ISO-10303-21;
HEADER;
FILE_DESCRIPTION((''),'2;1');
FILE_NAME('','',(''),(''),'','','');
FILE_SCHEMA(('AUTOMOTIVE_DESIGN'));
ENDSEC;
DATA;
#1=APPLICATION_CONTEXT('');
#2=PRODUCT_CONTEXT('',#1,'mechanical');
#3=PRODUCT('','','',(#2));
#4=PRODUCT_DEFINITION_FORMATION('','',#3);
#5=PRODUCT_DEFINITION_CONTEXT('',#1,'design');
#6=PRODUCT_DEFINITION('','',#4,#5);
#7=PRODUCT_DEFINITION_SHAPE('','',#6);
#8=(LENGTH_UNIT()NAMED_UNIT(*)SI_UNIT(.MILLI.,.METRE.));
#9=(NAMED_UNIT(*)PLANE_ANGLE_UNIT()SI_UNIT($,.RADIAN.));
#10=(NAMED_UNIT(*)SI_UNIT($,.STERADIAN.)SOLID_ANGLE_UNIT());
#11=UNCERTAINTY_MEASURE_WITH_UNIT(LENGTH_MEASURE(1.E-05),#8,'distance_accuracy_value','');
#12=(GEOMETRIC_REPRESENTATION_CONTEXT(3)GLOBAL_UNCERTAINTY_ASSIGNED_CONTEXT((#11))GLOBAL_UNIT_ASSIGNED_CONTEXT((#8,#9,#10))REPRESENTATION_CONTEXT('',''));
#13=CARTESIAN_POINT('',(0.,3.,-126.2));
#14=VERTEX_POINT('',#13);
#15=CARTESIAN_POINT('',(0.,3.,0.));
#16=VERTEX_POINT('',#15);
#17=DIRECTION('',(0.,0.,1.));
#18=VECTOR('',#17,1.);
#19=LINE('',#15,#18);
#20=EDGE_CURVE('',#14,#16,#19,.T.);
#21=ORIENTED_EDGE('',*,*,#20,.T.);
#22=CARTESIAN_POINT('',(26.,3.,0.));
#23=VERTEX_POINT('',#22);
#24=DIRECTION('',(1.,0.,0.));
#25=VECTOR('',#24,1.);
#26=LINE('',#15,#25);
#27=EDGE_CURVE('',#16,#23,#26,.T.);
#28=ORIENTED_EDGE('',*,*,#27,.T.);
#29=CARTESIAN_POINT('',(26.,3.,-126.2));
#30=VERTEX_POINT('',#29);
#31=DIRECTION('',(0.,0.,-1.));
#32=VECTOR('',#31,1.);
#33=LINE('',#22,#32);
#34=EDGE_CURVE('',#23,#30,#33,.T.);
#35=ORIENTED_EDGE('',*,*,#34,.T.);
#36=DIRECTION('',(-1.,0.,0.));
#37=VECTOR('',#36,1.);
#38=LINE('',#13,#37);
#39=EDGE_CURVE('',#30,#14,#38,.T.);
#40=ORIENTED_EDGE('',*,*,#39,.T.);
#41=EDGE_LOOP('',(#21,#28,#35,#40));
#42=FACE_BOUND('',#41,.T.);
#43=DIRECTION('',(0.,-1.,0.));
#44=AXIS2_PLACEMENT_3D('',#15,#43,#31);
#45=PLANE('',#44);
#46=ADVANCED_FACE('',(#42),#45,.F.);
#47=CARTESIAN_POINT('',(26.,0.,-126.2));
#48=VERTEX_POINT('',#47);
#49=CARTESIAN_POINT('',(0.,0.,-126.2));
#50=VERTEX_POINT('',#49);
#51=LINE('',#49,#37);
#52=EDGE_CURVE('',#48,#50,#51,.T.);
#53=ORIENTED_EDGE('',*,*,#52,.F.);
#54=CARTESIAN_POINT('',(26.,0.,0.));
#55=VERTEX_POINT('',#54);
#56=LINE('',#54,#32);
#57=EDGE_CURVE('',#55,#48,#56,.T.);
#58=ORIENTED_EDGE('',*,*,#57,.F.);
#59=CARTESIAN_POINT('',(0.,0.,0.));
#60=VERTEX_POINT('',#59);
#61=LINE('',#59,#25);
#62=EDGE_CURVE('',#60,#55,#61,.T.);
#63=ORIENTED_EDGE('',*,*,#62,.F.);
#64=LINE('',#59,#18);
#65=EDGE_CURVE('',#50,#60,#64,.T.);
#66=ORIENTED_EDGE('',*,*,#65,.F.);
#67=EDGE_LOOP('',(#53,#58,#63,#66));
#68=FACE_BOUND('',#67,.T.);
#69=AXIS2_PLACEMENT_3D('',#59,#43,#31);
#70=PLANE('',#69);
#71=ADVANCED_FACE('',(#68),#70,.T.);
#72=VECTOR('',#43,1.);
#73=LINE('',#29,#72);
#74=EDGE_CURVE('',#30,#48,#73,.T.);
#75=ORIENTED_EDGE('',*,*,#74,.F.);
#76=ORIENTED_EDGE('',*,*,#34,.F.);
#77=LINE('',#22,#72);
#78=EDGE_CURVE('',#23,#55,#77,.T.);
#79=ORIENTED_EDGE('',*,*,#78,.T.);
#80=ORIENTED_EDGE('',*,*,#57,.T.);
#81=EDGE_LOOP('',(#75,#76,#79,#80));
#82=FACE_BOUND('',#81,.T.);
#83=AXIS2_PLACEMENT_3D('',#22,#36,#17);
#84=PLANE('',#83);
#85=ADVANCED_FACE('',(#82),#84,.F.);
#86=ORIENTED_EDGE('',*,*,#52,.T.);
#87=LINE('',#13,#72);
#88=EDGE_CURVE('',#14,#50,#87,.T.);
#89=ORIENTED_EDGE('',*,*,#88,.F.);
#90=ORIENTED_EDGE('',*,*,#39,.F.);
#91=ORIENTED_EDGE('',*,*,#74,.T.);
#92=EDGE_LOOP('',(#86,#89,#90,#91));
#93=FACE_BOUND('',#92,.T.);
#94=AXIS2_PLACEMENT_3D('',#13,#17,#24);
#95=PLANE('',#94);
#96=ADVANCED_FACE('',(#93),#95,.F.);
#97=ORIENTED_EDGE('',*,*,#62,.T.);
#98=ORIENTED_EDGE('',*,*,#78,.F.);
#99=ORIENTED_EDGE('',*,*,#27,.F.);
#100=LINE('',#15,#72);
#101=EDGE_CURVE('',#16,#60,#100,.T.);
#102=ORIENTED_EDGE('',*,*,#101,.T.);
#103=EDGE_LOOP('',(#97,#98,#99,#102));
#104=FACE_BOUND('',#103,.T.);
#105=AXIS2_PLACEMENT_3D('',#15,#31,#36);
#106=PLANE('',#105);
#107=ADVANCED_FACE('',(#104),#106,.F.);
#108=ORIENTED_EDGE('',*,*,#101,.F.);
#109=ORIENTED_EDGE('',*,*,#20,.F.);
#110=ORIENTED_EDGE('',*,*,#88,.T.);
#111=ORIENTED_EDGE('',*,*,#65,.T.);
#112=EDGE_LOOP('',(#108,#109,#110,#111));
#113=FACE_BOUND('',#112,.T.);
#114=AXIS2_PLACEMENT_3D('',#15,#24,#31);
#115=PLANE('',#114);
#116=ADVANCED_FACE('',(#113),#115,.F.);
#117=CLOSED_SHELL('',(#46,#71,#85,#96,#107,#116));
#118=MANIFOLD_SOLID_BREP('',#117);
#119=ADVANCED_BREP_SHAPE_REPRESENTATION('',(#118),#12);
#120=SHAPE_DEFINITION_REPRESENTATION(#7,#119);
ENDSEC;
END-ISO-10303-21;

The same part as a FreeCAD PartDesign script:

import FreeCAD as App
import Part
import Sketcher
from FreeCAD import Vector
Q = App.Units.Quantity

doc = App.newDocument("Part")
params = doc.addObject("Spreadsheet::Sheet", "Params")
for row, (alias, value) in enumerate([
    ("sketch1_width", "26 mm"),
    ("sketch1_height", "126.2 mm"),
    ("pad1_length", "3 mm"),
], start=1):
    params.set(f"A{row}", alias)
    params.set(f"B{row}", "=" + value)
    params.setAlias(f"B{row}", alias)

body = doc.addObject("PartDesign::Body", "Body")

# Sketch on XZ plane
sketch1 = body.newObject("Sketcher::SketchObject", "Sketch")
sketch1.AttachmentSupport = (doc.getObject("XZ_Plane"), [""])
sketch1.MapMode = "FlatFace"
sketch1.addGeometry([
    Part.LineSegment(Vector(0, -126.2, 0), Vector(0, 0, 0)),
    Part.LineSegment(Vector(0, 0, 0), Vector(26, 0, 0)),
    Part.LineSegment(Vector(26, 0, 0), Vector(26, -126.2, 0)),
    Part.LineSegment(Vector(26, -126.2, 0), Vector(0, -126.2, 0)),
], False)
sketch1.addConstraint([
    Sketcher.Constraint("Coincident", 0, 2, 1, 1),
    Sketcher.Constraint("Coincident", 1, 2, 2, 1),
    Sketcher.Constraint("Coincident", 2, 2, 3, 1),
    Sketcher.Constraint("Coincident", 3, 2, 0, 1),
    Sketcher.Constraint("Vertical", 0),
    Sketcher.Constraint("Horizontal", 1),
    Sketcher.Constraint("Vertical", 2),
    Sketcher.Constraint("Horizontal", 3),
    Sketcher.Constraint("Coincident", 0, 2, -1, 1),
    Sketcher.Constraint("DistanceX", 1, 1, 1, 2, Q("26 mm")),
    Sketcher.Constraint("DistanceY", 0, 1, 0, 2, Q("126.2 mm")),
])
sketch1.setExpression("Constraints[9]", "Params.sketch1_width")
sketch1.setExpression("Constraints[10]", "Params.sketch1_height")
pad1 = body.newObject("PartDesign::Pad", "Pad")
pad1.Profile = sketch1
pad1.setExpression("Length", "Params.pad1_length")
pad1.Reversed = True

doc.recompute()
